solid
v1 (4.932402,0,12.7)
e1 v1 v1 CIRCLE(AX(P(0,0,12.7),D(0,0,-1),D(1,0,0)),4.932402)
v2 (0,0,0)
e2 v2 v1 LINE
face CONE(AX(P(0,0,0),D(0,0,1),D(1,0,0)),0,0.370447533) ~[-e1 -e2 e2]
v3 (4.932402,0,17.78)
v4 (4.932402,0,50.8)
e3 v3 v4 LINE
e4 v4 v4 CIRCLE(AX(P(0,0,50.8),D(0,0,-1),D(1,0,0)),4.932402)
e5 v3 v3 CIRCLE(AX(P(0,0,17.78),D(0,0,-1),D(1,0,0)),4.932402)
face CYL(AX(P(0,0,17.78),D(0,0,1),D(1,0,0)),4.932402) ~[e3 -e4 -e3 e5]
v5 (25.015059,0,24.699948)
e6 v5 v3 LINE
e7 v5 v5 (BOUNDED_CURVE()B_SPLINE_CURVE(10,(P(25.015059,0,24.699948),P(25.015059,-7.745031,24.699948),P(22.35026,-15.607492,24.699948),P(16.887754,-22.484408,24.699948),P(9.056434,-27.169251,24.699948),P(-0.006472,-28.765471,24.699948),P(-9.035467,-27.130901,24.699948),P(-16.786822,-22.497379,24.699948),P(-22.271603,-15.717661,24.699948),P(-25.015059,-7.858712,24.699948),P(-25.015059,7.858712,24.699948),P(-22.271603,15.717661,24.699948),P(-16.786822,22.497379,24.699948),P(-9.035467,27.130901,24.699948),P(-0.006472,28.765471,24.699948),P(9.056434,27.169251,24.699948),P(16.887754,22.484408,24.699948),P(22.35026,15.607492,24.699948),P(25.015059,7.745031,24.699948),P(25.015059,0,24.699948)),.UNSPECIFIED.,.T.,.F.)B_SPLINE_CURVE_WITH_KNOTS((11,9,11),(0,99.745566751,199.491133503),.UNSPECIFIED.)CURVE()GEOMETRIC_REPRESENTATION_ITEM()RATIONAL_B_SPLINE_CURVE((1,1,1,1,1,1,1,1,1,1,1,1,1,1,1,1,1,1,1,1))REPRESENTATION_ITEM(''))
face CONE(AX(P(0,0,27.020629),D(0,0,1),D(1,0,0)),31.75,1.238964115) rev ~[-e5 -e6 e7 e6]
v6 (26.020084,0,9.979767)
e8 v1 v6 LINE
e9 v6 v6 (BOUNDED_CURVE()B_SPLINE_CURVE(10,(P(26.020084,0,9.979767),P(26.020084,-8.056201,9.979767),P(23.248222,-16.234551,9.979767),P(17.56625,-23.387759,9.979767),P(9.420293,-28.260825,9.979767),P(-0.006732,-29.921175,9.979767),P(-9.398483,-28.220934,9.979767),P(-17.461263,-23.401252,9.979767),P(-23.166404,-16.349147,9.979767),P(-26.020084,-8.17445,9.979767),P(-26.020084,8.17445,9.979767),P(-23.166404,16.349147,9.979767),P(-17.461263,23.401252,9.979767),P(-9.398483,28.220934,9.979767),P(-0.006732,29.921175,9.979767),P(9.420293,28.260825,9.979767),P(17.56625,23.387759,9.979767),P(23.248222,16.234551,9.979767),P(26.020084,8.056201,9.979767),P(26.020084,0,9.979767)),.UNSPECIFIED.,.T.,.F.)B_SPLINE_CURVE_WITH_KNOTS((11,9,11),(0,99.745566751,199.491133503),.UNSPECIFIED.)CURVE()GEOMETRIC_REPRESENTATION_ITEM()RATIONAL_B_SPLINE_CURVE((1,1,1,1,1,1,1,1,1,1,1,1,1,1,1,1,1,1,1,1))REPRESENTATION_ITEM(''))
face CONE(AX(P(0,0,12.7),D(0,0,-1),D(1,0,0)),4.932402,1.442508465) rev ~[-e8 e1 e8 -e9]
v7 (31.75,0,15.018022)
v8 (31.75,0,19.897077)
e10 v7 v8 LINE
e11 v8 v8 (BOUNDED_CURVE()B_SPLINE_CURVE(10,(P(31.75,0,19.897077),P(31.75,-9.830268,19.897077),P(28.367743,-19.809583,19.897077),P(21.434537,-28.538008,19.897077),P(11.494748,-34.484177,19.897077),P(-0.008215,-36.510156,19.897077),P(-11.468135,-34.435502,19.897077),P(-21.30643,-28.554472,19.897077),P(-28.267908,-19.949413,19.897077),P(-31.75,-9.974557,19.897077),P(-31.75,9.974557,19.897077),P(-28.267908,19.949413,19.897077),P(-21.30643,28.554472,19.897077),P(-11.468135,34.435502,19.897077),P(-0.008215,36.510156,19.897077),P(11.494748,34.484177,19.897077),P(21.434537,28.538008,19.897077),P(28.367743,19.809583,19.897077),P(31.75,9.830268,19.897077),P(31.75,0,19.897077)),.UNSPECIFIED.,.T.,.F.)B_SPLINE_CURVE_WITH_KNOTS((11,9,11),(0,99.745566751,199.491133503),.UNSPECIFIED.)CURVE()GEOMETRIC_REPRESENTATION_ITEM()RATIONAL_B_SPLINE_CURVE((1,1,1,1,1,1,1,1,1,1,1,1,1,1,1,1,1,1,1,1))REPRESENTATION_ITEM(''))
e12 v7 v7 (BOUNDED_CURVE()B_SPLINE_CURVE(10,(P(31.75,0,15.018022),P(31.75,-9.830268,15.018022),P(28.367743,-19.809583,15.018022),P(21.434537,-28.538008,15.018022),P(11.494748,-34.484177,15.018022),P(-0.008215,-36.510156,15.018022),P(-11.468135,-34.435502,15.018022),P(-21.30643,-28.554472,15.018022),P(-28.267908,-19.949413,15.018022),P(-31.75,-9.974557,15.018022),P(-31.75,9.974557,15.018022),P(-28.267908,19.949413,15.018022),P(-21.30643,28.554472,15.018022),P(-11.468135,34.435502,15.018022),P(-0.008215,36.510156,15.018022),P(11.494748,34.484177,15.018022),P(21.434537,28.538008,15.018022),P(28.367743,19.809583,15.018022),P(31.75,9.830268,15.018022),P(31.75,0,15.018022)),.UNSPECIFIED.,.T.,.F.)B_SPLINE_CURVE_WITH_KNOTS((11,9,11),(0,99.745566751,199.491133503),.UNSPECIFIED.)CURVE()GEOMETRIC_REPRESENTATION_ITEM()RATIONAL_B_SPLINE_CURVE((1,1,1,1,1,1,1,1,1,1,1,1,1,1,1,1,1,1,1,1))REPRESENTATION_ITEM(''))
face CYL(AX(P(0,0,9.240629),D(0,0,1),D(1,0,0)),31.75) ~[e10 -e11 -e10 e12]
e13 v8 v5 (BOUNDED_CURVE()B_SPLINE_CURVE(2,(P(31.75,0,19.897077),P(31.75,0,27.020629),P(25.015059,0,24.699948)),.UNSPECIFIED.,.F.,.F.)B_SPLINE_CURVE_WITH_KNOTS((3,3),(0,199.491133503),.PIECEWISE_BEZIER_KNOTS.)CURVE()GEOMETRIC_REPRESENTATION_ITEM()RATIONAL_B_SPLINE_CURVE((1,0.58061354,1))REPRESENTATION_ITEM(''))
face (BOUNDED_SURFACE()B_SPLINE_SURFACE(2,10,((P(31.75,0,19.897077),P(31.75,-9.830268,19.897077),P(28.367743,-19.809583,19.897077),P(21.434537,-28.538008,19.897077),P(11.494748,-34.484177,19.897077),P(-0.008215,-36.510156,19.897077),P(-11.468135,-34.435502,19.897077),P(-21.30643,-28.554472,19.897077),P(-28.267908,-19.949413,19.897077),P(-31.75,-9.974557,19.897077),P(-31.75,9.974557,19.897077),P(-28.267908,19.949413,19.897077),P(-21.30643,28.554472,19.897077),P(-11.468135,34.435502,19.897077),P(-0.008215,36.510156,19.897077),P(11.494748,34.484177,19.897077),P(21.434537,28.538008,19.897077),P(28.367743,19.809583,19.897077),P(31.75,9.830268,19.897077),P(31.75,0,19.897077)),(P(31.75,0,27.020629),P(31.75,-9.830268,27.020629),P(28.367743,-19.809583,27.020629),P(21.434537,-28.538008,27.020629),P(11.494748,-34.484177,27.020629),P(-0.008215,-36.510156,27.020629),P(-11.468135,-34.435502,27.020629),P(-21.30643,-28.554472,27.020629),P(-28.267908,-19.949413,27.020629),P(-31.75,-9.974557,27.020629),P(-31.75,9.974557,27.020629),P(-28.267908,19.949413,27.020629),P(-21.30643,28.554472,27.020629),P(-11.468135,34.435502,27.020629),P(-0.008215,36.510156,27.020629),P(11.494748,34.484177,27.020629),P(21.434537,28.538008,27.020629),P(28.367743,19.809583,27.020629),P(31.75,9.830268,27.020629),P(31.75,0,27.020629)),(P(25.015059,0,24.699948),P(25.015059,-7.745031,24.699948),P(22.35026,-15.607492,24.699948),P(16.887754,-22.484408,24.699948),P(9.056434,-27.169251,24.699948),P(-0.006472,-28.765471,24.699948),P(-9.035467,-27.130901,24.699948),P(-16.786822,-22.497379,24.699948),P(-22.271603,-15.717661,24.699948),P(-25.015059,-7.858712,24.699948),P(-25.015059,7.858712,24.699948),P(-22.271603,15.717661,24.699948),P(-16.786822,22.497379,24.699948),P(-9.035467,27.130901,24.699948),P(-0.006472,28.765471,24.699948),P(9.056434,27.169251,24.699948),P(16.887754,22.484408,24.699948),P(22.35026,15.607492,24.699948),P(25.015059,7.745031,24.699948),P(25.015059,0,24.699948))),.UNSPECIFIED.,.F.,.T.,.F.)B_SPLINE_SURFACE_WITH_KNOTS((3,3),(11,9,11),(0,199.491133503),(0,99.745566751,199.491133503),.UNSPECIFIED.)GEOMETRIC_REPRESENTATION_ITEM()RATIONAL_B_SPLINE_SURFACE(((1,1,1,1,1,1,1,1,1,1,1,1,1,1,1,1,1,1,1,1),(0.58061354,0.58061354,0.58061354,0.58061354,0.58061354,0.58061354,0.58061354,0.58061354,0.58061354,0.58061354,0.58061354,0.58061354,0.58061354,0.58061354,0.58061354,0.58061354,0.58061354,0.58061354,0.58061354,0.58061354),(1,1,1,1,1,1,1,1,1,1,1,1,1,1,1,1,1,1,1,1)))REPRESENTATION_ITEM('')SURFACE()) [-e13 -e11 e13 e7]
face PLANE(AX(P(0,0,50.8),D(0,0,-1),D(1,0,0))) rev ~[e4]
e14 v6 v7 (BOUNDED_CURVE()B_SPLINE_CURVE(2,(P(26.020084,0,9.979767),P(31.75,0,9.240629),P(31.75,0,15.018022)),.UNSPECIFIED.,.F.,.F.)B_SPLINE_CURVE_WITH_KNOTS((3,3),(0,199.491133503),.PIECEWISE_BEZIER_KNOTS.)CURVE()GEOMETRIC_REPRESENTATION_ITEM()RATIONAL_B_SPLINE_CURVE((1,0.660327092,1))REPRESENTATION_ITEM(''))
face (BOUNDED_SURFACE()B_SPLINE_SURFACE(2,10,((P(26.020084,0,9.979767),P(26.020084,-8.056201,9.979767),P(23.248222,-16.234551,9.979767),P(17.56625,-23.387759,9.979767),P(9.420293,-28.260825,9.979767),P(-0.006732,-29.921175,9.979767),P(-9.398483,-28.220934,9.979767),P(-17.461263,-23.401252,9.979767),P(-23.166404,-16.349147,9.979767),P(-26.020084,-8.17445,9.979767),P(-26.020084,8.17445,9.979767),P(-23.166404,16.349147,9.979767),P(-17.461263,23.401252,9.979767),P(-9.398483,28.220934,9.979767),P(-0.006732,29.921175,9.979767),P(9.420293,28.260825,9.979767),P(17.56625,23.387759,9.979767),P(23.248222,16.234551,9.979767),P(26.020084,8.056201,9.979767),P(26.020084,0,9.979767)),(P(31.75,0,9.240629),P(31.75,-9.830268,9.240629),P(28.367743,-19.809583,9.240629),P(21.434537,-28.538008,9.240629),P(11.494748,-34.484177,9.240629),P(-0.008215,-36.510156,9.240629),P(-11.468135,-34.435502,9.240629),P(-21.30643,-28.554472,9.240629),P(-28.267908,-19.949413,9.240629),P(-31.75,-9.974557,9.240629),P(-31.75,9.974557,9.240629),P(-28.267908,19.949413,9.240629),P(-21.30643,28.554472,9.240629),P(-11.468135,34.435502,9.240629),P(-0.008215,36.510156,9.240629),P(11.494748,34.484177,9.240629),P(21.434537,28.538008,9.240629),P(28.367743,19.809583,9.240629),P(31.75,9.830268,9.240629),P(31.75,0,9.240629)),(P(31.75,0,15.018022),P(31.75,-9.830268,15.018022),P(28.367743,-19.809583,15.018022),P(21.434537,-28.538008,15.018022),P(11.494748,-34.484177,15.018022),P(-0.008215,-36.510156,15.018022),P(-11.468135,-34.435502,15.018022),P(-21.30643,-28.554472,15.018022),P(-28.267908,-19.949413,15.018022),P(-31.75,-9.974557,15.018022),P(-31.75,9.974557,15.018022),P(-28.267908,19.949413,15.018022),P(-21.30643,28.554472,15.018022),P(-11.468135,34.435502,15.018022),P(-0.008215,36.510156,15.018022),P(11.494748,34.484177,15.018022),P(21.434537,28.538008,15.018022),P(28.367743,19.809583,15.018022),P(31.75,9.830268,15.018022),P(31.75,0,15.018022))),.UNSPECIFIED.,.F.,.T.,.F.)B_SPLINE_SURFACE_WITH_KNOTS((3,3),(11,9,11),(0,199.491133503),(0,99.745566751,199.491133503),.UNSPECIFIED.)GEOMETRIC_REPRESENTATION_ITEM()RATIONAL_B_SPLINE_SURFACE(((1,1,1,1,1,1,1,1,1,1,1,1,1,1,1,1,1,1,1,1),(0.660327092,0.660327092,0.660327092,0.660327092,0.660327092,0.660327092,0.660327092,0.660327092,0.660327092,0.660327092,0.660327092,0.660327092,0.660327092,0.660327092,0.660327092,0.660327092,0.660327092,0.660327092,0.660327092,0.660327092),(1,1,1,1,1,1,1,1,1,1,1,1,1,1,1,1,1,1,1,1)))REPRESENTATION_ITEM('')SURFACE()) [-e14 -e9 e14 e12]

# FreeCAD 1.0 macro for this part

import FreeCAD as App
import Part
import Sketcher
Q = App.Units.Quantity


def edges_at(feature, points):
    """Names of the edges that pass closest to the given points."""
    edges = feature.Shape.Edges
    near = lambda p: min(range(len(edges)), key=lambda i: edges[i].distToShape(Part.Vertex(*p))[0])
    return sorted({f"Edge{near(p) + 1}" for p in points})


def add_polygon(sketch, points):
    """Adds a closed chain of lines whose ends are joined by coincident constraints."""
    first, n = sketch.GeometryCount, len(points)
    for a, b in zip(points, points[1:] + points[:1]):
        sketch.addGeometry(Part.LineSegment(App.Vector(*a, 0), App.Vector(*b, 0)), False)
    for i in range(n):
        sketch.addConstraint(Sketcher.Constraint("Coincident", first + i, 2, first + (i + 1) % n, 1))

doc = App.newDocument("Part")
body = doc.addObject("PartDesign::Body", "Body")

# Sketch on XZ plane
sketch1 = doc.addObject("Sketcher::SketchObject", "Sketch")
body.addObject(sketch1)
sketch1.AttachmentSupport = (doc.XZ_Plane, [""])
sketch1.MapMode = "FlatFace"
add_polygon(sketch1, [(0, 50.8), (0, 0), (4.9, 12.7), (31.8, 9.2), (31.8, 27), (4.9, 17.8), (4.9, 50.8)])  # lines 0-6
sketch1.addConstraint([
    Sketcher.Constraint("Vertical", 0),
    Sketcher.Constraint("Vertical", 3),
    Sketcher.Constraint("Vertical", 5),
    Sketcher.Constraint("Horizontal", 6),
    Sketcher.Constraint("Coincident", 0, 2, -1, 1),
    Sketcher.Constraint("Vertical", 1, 2, 4, 2),
    Sketcher.Constraint("DistanceY", 0, 2, 0, 1, Q("2 in")),
    Sketcher.Constraint("DistanceY", 3, 1, 3, 2, Q("0.7 in")),
    Sketcher.Constraint("DistanceY", 5, 1, 5, 2, Q("1.3 in")),
    Sketcher.Constraint("DistanceY", -1, 1, 1, 2, Q("0.5 in")),
    Sketcher.Constraint("DistanceX", -1, 1, 2, 2, Q("1.25 in")),
    Sketcher.Constraint("DistanceX", 6, 2, 6, 1, Q("4.932402 mm")),
    Sketcher.Constraint("Distance", 2, Q("27.0398 mm")),
])
revolution = doc.addObject("PartDesign::Revolution", "Revolution")
body.addObject(revolution)
revolution.Profile = sketch1
revolution.ReferenceAxis = (sketch1, ["V_Axis"])
revolution.Angle = 360
doc.recompute()

fillet = doc.addObject("PartDesign::Fillet", "Fillet")
body.addObject(fillet)
fillet.Base = (revolution, edges_at(revolution, [(-31.75, 0, 9.241), (-31.75, 0, 27.021), (31.75, 0, 18.131)]))
fillet.Radius = Q("0.2 in")

doc.recompute()
